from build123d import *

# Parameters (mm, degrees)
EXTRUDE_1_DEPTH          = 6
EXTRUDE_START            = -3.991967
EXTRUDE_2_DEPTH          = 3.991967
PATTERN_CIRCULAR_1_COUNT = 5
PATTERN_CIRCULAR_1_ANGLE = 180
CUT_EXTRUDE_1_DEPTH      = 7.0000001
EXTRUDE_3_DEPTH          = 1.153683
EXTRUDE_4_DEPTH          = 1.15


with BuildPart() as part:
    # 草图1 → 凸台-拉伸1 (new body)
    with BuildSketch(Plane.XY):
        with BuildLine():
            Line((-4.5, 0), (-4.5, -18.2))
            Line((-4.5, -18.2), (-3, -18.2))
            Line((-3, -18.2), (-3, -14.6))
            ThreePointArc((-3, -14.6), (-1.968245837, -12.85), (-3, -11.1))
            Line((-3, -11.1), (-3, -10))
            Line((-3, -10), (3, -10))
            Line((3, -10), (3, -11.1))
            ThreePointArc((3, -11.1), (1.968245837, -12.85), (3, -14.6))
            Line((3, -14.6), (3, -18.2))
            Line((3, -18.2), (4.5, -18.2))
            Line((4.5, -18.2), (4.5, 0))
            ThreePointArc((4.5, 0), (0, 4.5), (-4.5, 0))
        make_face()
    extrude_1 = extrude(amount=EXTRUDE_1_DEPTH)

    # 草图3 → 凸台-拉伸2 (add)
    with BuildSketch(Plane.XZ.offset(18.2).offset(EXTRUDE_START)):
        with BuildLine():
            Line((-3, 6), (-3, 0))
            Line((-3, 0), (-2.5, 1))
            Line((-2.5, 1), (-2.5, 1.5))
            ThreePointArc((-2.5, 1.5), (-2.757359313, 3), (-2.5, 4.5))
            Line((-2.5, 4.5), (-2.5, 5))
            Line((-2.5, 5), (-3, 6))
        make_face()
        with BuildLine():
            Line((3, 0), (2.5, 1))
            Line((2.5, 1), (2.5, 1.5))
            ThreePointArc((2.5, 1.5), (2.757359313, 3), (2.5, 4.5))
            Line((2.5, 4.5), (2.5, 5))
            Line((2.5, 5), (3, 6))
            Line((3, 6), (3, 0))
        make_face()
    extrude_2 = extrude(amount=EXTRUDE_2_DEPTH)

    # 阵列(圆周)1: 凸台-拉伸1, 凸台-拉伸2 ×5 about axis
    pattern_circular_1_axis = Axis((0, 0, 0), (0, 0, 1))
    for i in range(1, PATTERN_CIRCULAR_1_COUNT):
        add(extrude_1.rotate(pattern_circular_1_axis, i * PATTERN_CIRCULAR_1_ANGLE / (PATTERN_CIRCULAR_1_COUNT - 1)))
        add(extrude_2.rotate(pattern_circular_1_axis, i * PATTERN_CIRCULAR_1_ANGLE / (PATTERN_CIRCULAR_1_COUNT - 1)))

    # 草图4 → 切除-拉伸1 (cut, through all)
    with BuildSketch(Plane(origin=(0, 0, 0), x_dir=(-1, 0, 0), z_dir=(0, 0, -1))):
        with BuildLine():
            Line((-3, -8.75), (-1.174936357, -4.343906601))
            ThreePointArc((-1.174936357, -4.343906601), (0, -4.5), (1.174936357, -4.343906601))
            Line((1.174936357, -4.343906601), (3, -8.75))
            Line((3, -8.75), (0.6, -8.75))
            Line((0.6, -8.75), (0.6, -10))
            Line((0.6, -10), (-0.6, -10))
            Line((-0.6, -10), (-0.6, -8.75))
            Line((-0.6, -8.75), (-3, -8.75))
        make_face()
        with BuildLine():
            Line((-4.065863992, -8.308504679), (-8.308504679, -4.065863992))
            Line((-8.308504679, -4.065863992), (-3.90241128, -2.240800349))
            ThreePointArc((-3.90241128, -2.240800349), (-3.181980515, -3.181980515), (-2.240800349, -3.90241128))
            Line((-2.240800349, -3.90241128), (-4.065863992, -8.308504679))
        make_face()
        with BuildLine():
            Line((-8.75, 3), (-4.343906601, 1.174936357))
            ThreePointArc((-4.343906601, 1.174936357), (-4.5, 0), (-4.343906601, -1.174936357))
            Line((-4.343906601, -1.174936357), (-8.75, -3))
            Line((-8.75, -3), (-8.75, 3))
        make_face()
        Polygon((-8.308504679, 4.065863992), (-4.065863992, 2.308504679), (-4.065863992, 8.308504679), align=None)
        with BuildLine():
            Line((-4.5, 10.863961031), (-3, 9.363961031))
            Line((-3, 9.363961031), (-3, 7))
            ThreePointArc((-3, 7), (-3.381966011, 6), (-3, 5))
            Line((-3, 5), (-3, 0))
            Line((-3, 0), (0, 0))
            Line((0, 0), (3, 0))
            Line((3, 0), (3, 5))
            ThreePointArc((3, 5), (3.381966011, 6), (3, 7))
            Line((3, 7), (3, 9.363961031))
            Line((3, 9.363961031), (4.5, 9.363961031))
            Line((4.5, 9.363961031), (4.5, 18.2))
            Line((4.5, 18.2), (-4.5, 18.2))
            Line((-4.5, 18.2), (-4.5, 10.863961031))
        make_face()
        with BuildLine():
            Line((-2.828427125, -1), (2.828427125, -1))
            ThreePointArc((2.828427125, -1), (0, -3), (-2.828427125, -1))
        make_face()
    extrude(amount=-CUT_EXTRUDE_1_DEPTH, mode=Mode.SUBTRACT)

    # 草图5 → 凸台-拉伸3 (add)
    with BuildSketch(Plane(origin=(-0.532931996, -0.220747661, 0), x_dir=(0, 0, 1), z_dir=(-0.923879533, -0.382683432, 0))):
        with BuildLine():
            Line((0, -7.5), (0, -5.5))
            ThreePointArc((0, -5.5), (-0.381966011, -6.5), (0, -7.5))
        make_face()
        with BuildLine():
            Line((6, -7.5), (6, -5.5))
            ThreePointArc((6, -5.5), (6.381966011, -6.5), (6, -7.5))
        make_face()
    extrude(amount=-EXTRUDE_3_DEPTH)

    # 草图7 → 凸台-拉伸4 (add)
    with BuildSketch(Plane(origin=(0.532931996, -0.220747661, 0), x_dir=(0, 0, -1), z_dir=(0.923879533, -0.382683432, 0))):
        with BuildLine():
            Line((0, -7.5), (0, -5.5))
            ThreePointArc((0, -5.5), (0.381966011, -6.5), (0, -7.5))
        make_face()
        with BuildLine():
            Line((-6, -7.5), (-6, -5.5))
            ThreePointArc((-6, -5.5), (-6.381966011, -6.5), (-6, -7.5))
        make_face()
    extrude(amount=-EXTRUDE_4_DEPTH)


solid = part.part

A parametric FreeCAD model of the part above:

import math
import FreeCAD as App
import Part
import Sketcher

V = App.Vector
Q = App.Units.Quantity


def add_polygon(sketch, points):
    """Adds a closed chain of lines whose ends are joined by coincident constraints."""
    first, n = sketch.GeometryCount, len(points)
    for a, b in zip(points, points[1:] + points[:1]):
        sketch.addGeometry(Part.LineSegment(App.Vector(*a, 0), App.Vector(*b, 0)), False)
    for i in range(n):
        sketch.addConstraint(Sketcher.Constraint("Coincident", first + i, 2, first + (i + 1) % n, 1))

doc = App.newDocument("Part")
params = doc.addObject("Spreadsheet::Sheet", "Params")
for row, (alias, value) in enumerate([
    ("sketch1_radius", "2 mm"),
    ("sketch1_radius2", "4.5 mm"),
    ("sketch1_width", "6 mm"),
    ("sketch1_height", "18.2 mm"),
    ("sketch1_height2", "3.6 mm"),
    ("pad1_length", "6 mm"),
    ("sketch2_radius", "4.5 mm"),
    ("sketch2_height", "6 mm"),
    ("sketch2_height2", "0.5 mm"),
    ("pad2_length", "3.991967 mm"),
    ("sketch3_radius", "3 mm"),
    ("sketch3_radius2", "4.5 mm"),
    ("sketch3_radius3", "1.5 mm"),
    ("sketch3_width", "6 mm"),
    ("sketch3_width2", "9 mm"),
    ("sketch4_radius", "1.5 mm"),
    ("sketch4_height", "2 mm"),
    ("pad3_length", "1.153683 mm"),
    ("sketch5_radius", "1.5 mm"),
    ("sketch5_height", "2 mm"),
    ("pad4_length", "1.15 mm"),
], start=1):
    params.set(f"A{row}", alias)
    params.set(f"B{row}", "=" + value)
    params.setAlias(f"B{row}", alias)

body = doc.addObject("PartDesign::Body", "Body")

sketch1 = doc.addObject("Sketcher::SketchObject", "Sketch")
body.addObject(sketch1)
sketch1.AttachmentSupport = (doc.XY_Plane, [""])
sketch1.MapMode = "FlatFace"
sketch1.addGeometry(Part.LineSegment(V(-4.5, 0, 0), V(-4.5, -18.2, 0)), False)
sketch1.addGeometry(Part.LineSegment(V(-4.5, -18.2, 0), V(-3, -18.2, 0)), False)
sketch1.addGeometry(Part.LineSegment(V(-3, -18.2, 0), V(-3, -14.6, 0)), False)
sketch1.addGeometry(Part.ArcOfCircle(Part.Circle(V(-4, -12.8, 0), V(0, 0, 1), 2), math.radians(-61), math.radians(61)), False)
sketch1.addGeometry(Part.LineSegment(V(-3, -11.1, 0), V(-3, -10, 0)), False)
sketch1.addGeometry(Part.LineSegment(V(-3, -10, 0), V(3, -10, 0)), False)
sketch1.addGeometry(Part.LineSegment(V(3, -10, 0), V(3, -11.1, 0)), False)
sketch1.addGeometry(Part.ArcOfCircle(Part.Circle(V(4, -12.8, 0), V(0, 0, 1), 2), math.radians(119), math.radians(241)), False)
sketch1.addGeometry(Part.LineSegment(V(3, -14.6, 0), V(3, -18.2, 0)), False)
sketch1.addGeometry(Part.LineSegment(V(3, -18.2, 0), V(4.5, -18.2, 0)), False)
sketch1.addGeometry(Part.LineSegment(V(4.5, -18.2, 0), V(4.5, 0, 0)), False)
sketch1.addGeometry(Part.ArcOfCircle(Part.Circle(V(0, 0, 0), V(0, 0, 1), 4.5), math.radians(0), math.radians(180)), False)
sketch1.addConstraint(Sketcher.Constraint("Coincident", 0, 2, 1, 1))
sketch1.addConstraint(Sketcher.Constraint("Coincident", 1, 2, 2, 1))
sketch1.addConstraint(Sketcher.Constraint("Coincident", 2, 2, 3, 1))
sketch1.addConstraint(Sketcher.Constraint("Coincident", 3, 2, 4, 1))
sketch1.addConstraint(Sketcher.Constraint("Coincident", 4, 2, 5, 1))
sketch1.addConstraint(Sketcher.Constraint("Coincident", 5, 2, 6, 1))
sketch1.addConstraint(Sketcher.Constraint("Coincident", 6, 2, 7, 1))
sketch1.addConstraint(Sketcher.Constraint("Coincident", 7, 2, 8, 1))
sketch1.addConstraint(Sketcher.Constraint("Coincident", 8, 2, 9, 1))
sketch1.addConstraint(Sketcher.Constraint("Coincident", 9, 2, 10, 1))
sketch1.addConstraint(Sketcher.Constraint("Tangent", 10, 2, 11, 1))
sketch1.addConstraint(Sketcher.Constraint("Tangent", 11, 2, 0, 1))
sketch1.addConstraint(Sketcher.Constraint("Vertical", 0))
sketch1.addConstraint(Sketcher.Constraint("Horizontal", 1))
sketch1.addConstraint(Sketcher.Constraint("Vertical", 2))
sketch1.addConstraint(Sketcher.Constraint("Vertical", 4))
sketch1.addConstraint(Sketcher.Constraint("Horizontal", 5))
sketch1.addConstraint(Sketcher.Constraint("Vertical", 6))
sketch1.addConstraint(Sketcher.Constraint("Vertical", 8))
sketch1.addConstraint(Sketcher.Constraint("Horizontal", 9))
sketch1.addConstraint(Sketcher.Constraint("Vertical", 10))
sketch1.addConstraint(Sketcher.Constraint("Coincident", 11, 3, -1, 1))
sketch1.addConstraint(Sketcher.Constraint("Equal", 3, 7))
sketch1.addConstraint(Sketcher.Constraint("Symmetric", 3, 3, 7, 3, -2))
sketch1.addConstraint(Sketcher.Constraint("Symmetric", 1, 2, 8, 2, -2))
sketch1.addConstraint(Sketcher.Constraint("Horizontal", 3, 2, 6, 2))
sketch1.addConstraint(Sketcher.Constraint("Vertical", 2, 2, 3, 2))
sketch1.addConstraint(Sketcher.Constraint("Radius", 3, Q("2 mm")))
sketch1.addConstraint(Sketcher.Constraint("Radius", 11, Q("4.5 mm")))
sketch1.addConstraint(Sketcher.Constraint("DistanceX", 5, 1, 5, 2, Q("6 mm")))
sketch1.addConstraint(Sketcher.Constraint("DistanceY", 0, 2, 0, 1, Q("18.2 mm")))
sketch1.addConstraint(Sketcher.Constraint("DistanceY", 2, 1, 2, 2, Q("3.6 mm")))
sketch1.addConstraint(Sketcher.Constraint("DistanceY", 4, 1, 4, 2, Q("1.1 mm")))
sketch1.addConstraint(Sketcher.Constraint("DistanceY", 4, 2, -1, 1, Q("10 mm")))
sketch1.setExpression("Constraints[27]", "Params.sketch1_radius")
sketch1.setExpression("Constraints[28]", "Params.sketch1_radius2")
sketch1.setExpression("Constraints[29]", "Params.sketch1_width")
sketch1.setExpression("Constraints[30]", "Params.sketch1_height")
sketch1.setExpression("Constraints[31]", "Params.sketch1_height2")
pad1 = doc.addObject("PartDesign::Pad", "Pad")
body.addObject(pad1)
pad1.Profile = sketch1
pad1.setExpression("Length", "Params.pad1_length")

sketch2 = doc.addObject("Sketcher::SketchObject", "Sketch001")
body.addObject(sketch2)
sketch2.AttachmentSupport = (doc.XZ_Plane, [""])
sketch2.MapMode = "FlatFace"
sketch2.AttachmentOffset = App.Placement(V(0, 0, 14.208033), App.Rotation())
sketch2.addGeometry(Part.LineSegment(V(-3, 6, 0), V(-3, 0, 0)), False)
sketch2.addGeometry(Part.LineSegment(V(-3, 0, 0), V(-2.5, 1, 0)), False)
sketch2.addGeometry(Part.LineSegment(V(-2.5, 1, 0), V(-2.5, 1.5, 0)), False)
sketch2.addGeometry(Part.ArcOfCircle(Part.Circle(V(1.7, 3, 0), V(0, 0, 1), 4.5), math.radians(161), math.radians(199)), False)
sketch2.addGeometry(Part.LineSegment(V(-2.5, 4.5, 0), V(-2.5, 5, 0)), False)
sketch2.addGeometry(Part.LineSegment(V(-2.5, 5, 0), V(-3, 6, 0)), False)
sketch2.addGeometry(Part.LineSegment(V(2.5, 1, 0), V(3, 0, 0)), False)
sketch2.addGeometry(Part.LineSegment(V(3, 0, 0), V(3, 6, 0)), False)
sketch2.addGeometry(Part.LineSegment(V(3, 6, 0), V(2.5, 5, 0)), False)
sketch2.addGeometry(Part.LineSegment(V(2.5, 5, 0), V(2.5, 4.5, 0)), False)
sketch2.addGeometry(Part.ArcOfCircle(Part.Circle(V(-1.7, 3, 0), V(0, 0, 1), 4.5), math.radians(-19), math.radians(19)), False)
sketch2.addGeometry(Part.LineSegment(V(2.5, 1.5, 0), V(2.5, 1, 0)), False)
sketch2.addConstraint(Sketcher.Constraint("Coincident", 0, 2, 1, 1))
sketch2.addConstraint(Sketcher.Constraint("Coincident", 1, 2, 2, 1))
sketch2.addConstraint(Sketcher.Constraint("Coincident", 2, 2, 3, 2))
sketch2.addConstraint(Sketcher.Constraint("Coincident", 3, 1, 4, 1))
sketch2.addConstraint(Sketcher.Constraint("Coincident", 4, 2, 5, 1))
sketch2.addConstraint(Sketcher.Constraint("Coincident", 5, 2, 0, 1))
sketch2.addConstraint(Sketcher.Constraint("Coincident", 6, 2, 7, 1))
sketch2.addConstraint(Sketcher.Constraint("Coincident", 7, 2, 8, 1))
sketch2.addConstraint(Sketcher.Constraint("Coincident", 8, 2, 9, 1))
sketch2.addConstraint(Sketcher.Constraint("Coincident", 9, 2, 10, 2))
sketch2.addConstraint(Sketcher.Constraint("Coincident", 10, 1, 11, 1))
sketch2.addConstraint(Sketcher.Constraint("Coincident", 11, 2, 6, 1))
sketch2.addConstraint(Sketcher.Constraint("Vertical", 0))
sketch2.addConstraint(Sketcher.Constraint("Vertical", 2))
sketch2.addConstraint(Sketcher.Constraint("Vertical", 4))
sketch2.addConstraint(Sketcher.Constraint("Vertical", 7))
sketch2.addConstraint(Sketcher.Constraint("Vertical", 9))
sketch2.addConstraint(Sketcher.Constraint("Vertical", 11))
sketch2.addConstraint(Sketcher.Constraint("Equal", 3, 10))
sketch2.addConstraint(Sketcher.Constraint("Symmetric", 0, 2, 6, 2, -1, 1))
sketch2.addConstraint(Sketcher.Constraint("Symmetric", 3, 3, 10, 3, -2))
sketch2.addConstraint(Sketcher.Constraint("Symmetric", 4, 2, 8, 2, -2))
sketch2.addConstraint(Sketcher.Constraint("Symmetric", 1, 2, 11, 2, -2))
sketch2.addConstraint(Sketcher.Constraint("PointOnObject", 0, 2, -1))
sketch2.addConstraint(Sketcher.Constraint("Parallel", 5, 6))
sketch2.addConstraint(Sketcher.Constraint("Parallel", 1, 8))
sketch2.addConstraint(Sketcher.Constraint("Vertical", 2, 2, 3, 1))
sketch2.addConstraint(Sketcher.Constraint("Equal", 2, 4))
sketch2.addConstraint(Sketcher.Constraint("Radius", 3, Q("4.5 mm")))
sketch2.addConstraint(Sketcher.Constraint("DistanceY", 0, 2, 0, 1, Q("6 mm")))
sketch2.addConstraint(Sketcher.Constraint("DistanceY", 2, 1, 2, 2, Q("0.5 mm")))
sketch2.addConstraint(Sketcher.Constraint("DistanceX", 0, 2, -1, 1, Q("3 mm")))
sketch2.addConstraint(Sketcher.Constraint("DistanceY", -1, 1, 1, 2, Q("1 mm")))
sketch2.addConstraint(Sketcher.Constraint("DistanceX", 4, 2, 8, 2, Q("5 mm")))
sketch2.setExpression("Constraints[28]", "Params.sketch2_radius")
sketch2.setExpression("Constraints[29]", "Params.sketch2_height")
sketch2.setExpression("Constraints[30]", "Params.sketch2_height2")
pad2 = doc.addObject("PartDesign::Pad", "Pad001")
body.addObject(pad2)
pad2.Profile = sketch2
pad2.setExpression("Length", "Params.pad2_length")
doc.recompute()

polarpattern = doc.addObject("PartDesign::PolarPattern", "PolarPattern")
body.addObject(polarpattern)
polarpattern.Originals = [pad1, pad2]
polarpattern.Axis = (doc.Z_Axis, [""])
polarpattern.Angle = 180
polarpattern.Occurrences = 5
body.Tip = polarpattern

sketch3 = doc.addObject("Sketcher::SketchObject", "Sketch002")
body.addObject(sketch3)
sketch3.AttachmentSupport = (doc.XY_Plane, [""])
sketch3.MapMode = "FlatFace"
sketch3.addGeometry(Part.LineSegment(V(1.2, -4.3, 0), V(3, -8.8, 0)), False)
sketch3.addGeometry(Part.LineSegment(V(3, -8.8, 0), V(0.6, -8.8, 0)), False)
sketch3.addGeometry(Part.LineSegment(V(0.6, -8.8, 0), V(0.6, -10, 0)), False)
sketch3.addGeometry(Part.LineSegment(V(0.6, -10, 0), V(-0.6, -10, 0)), False)
sketch3.addGeometry(Part.LineSegment(V(-0.6, -10, 0), V(-0.6, -8.8, 0)), False)
sketch3.addGeometry(Part.LineSegment(V(-0.6, -8.8, 0), V(-3, -8.8, 0)), False)
sketch3.addGeometry(Part.LineSegment(V(-3, -8.8, 0), V(-1.2, -4.3, 0)), False)
sketch3.addGeometry(Part.ArcOfCircle(Part.Circle(V(0, 0, 0), V(0, 0, 1), 4.5), math.radians(-105), math.radians(-75)), False)
sketch3.addGeometry(Part.LineSegment(V(8.3, -4.1, 0), V(4.1, -8.3, 0)), False)
sketch3.addGeometry(Part.LineSegment(V(4.1, -8.3, 0), V(2.2, -3.9, 0)), False)
sketch3.addGeometry(Part.ArcOfCircle(Part.Circle(V(0, 0, 0), V(0, 0, 1), 4.5), math.radians(-60), math.radians(-30)), False)
sketch3.addGeometry(Part.LineSegment(V(3.9, -2.2, 0), V(8.3, -4.1, 0)), False)
sketch3.addGeometry(Part.LineSegment(V(4.3, 1.2, 0), V(8.8, 3, 0)), False)
sketch3.addGeometry(Part.LineSegment(V(8.8, 3, 0), V(8.8, -3, 0)), False)
sketch3.addGeometry(Part.LineSegment(V(8.8, -3, 0), V(4.3, -1.2, 0)), False)
sketch3.addGeometry(Part.ArcOfCircle(Part.Circle(V(0, 0, 0), V(0, 0, 1), 4.5), math.radians(-15), math.radians(15)), False)
add_polygon(sketch3, [(8.3, 4.1), (4.1, 2.3), (4.1, 8.3)])
sketch3.addGeometry(Part.LineSegment(V(4.5, 10.9, 0), V(3, 9.4, 0)), False)
sketch3.addGeometry(Part.LineSegment(V(3, 9.4, 0), V(3, 7, 0)), False)
sketch3.addGeometry(Part.ArcOfCircle(Part.Circle(V(1.9, 6, 0), V(0, 0, 1), 1.5), math.radians(-42), math.radians(42)), False)
sketch3.addGeometry(Part.LineSegment(V(3, 5, 0), V(3, 0, 0)), False)
sketch3.addGeometry(Part.LineSegment(V(3, 0, 0), V(-3, 0, 0)), False)
sketch3.addGeometry(Part.LineSegment(V(-3, 0, 0), V(-3, 5, 0)), False)
sketch3.addGeometry(Part.ArcOfCircle(Part.Circle(V(-1.9, 6, 0), V(0, 0, 1), 1.5), math.radians(138), math.radians(222)), False)
sketch3.addGeometry(Part.LineSegment(V(-3, 7, 0), V(-3, 9.4, 0)), False)
sketch3.addGeometry(Part.LineSegment(V(-3, 9.4, 0), V(-4.5, 9.4, 0)), False)
sketch3.addGeometry(Part.LineSegment(V(-4.5, 9.4, 0), V(-4.5, 18.2, 0)), False)
sketch3.addGeometry(Part.LineSegment(V(-4.5, 18.2, 0), V(4.5, 18.2, 0)), False)
sketch3.addGeometry(Part.LineSegment(V(4.5, 18.2, 0), V(4.5, 10.9, 0)), False)
sketch3.addGeometry(Part.LineSegment(V(-2.8, -1, 0), V(2.8, -1, 0)), False)
sketch3.addGeometry(Part.ArcOfCircle(Part.Circle(V(0, 0, 0), V(0, 0, 1), 3), math.radians(-161), math.radians(-19)), False)
sketch3.addConstraint(Sketcher.Constraint("Coincident", 0, 2, 1, 1))
sketch3.addConstraint(Sketcher.Constraint("Coincident", 1, 2, 2, 1))
sketch3.addConstraint(Sketcher.Constraint("Coincident", 2, 2, 3, 1))
sketch3.addConstraint(Sketcher.Constraint("Coincident", 3, 2, 4, 1))
sketch3.addConstraint(Sketcher.Constraint("Coincident", 4, 2, 5, 1))
sketch3.addConstraint(Sketcher.Constraint("Coincident", 5, 2, 6, 1))
sketch3.addConstraint(Sketcher.Constraint("Coincident", 6, 2, 7, 1))
sketch3.addConstraint(Sketcher.Constraint("Coincident", 7, 2, 0, 1))
sketch3.addConstraint(Sketcher.Constraint("Coincident", 8, 2, 9, 1))
sketch3.addConstraint(Sketcher.Constraint("Coincident", 9, 2, 10, 1))
sketch3.addConstraint(Sketcher.Constraint("Coincident", 10, 2, 11, 1))
sketch3.addConstraint(Sketcher.Constraint("Coincident", 11, 2, 8, 1))
sketch3.addConstraint(Sketcher.Constraint("Coincident", 12, 2, 13, 1))
sketch3.addConstraint(Sketcher.Constraint("Coincident", 13, 2, 14, 1))
sketch3.addConstraint(Sketcher.Constraint("Coincident", 14, 2, 15, 1))
sketch3.addConstraint(Sketcher.Constraint("Coincident", 15, 2, 12, 1))
sketch3.addConstraint(Sketcher.Constraint("Coincident", 19, 2, 20, 1))
sketch3.addConstraint(Sketcher.Constraint("Coincident", 20, 2, 21, 2))
sketch3.addConstraint(Sketcher.Constraint("Coincident", 21, 1, 22, 1))
sketch3.addConstraint(Sketcher.Constraint("Coincident", 22, 2, 23, 1))
sketch3.addConstraint(Sketcher.Constraint("Coincident", 23, 2, 24, 1))
sketch3.addConstraint(Sketcher.Constraint("Coincident", 24, 2, 25, 2))
sketch3.addConstraint(Sketcher.Constraint("Coincident", 25, 1, 26, 1))
sketch3.addConstraint(Sketcher.Constraint("Coincident", 26, 2, 27, 1))
sketch3.addConstraint(Sketcher.Constraint("Coincident", 27, 2, 28, 1))
sketch3.addConstraint(Sketcher.Constraint("Coincident", 28, 2, 29, 1))
sketch3.addConstraint(Sketcher.Constraint("Coincident", 29, 2, 30, 1))
sketch3.addConstraint(Sketcher.Constraint("Coincident", 30, 2, 19, 1))
sketch3.addConstraint(Sketcher.Constraint("Coincident", 31, 1, 32, 1))
sketch3.addConstraint(Sketcher.Constraint("Coincident", 32, 2, 31, 2))
sketch3.addConstraint(Sketcher.Constraint("Horizontal", 1))
sketch3.addConstraint(Sketcher.Constraint("Vertical", 2))
sketch3.addConstraint(Sketcher.Constraint("Horizontal", 3))
sketch3.addConstraint(Sketcher.Constraint("Vertical", 4))
sketch3.addConstraint(Sketcher.Constraint("Horizontal", 5))
sketch3.addConstraint(Sketcher.Constraint("Vertical", 13))
sketch3.addConstraint(Sketcher.Constraint("Vertical", 17))
sketch3.addConstraint(Sketcher.Constraint("Vertical", 20))
sketch3.addConstraint(Sketcher.Constraint("Vertical", 22))
sketch3.addConstraint(Sketcher.Constraint("Horizontal", 23))
sketch3.addConstraint(Sketcher.Constraint("Vertical", 24))
sketch3.addConstraint(Sketcher.Constraint("Vertical", 26))
sketch3.addConstraint(Sketcher.Constraint("Horizontal", 27))
sketch3.addConstraint(Sketcher.Constraint("Vertical", 28))
sketch3.addConstraint(Sketcher.Constraint("Horizontal", 29))
sketch3.addConstraint(Sketcher.Constraint("Vertical", 30))
sketch3.addConstraint(Sketcher.Constraint("Horizontal", 31))
sketch3.addConstraint(Sketcher.Constraint("Coincident", 7, 3, -1, 1))
sketch3.addConstraint(Sketcher.Constraint("Coincident", 10, 3, -1, 1))
sketch3.addConstraint(Sketcher.Constraint("Coincident", 15, 3, -1, 1))
sketch3.addConstraint(Sketcher.Constraint("Coincident", 32, 3, -1, 1))
sketch3.addConstraint(Sketcher.Constraint("Equal", 7, 10))
sketch3.addConstraint(Sketcher.Constraint("Equal", 10, 15))
sketch3.addConstraint(Sketcher.Constraint("Equal", 21, 25))
sketch3.addConstraint(Sketcher.Constraint("Symmetric", 22, 2, 23, 2, -1, 1))
sketch3.addConstraint(Sketcher.Constraint("Symmetric", 21, 3, 25, 3, -2))
sketch3.addConstraint(Sketcher.Constraint("Symmetric", 1, 2, 4, 2, -2))
sketch3.addConstraint(Sketcher.Constraint("Symmetric", 19, 2, 26, 2, -2))
sketch3.addConstraint(Sketcher.Constraint("Symmetric", 8, 2, 17, 2, -1))
sketch3.addConstraint(Sketcher.Constraint("Symmetric", 11, 2, 18, 2, -1))
sketch3.addConstraint(Sketcher.Constraint("Parallel", 0, 9))
sketch3.addConstraint(Sketcher.Constraint("Perpendicular", 6, 11))
sketch3.addConstraint(Sketcher.Constraint("Perpendicular", 9, 12))
sketch3.addConstraint(Sketcher.Constraint("Parallel", 11, 14))
sketch3.addConstraint(Sketcher.Constraint("Parallel", 12, 16))
sketch3.addConstraint(Sketcher.Constraint("Perpendicular", 8, 18))
sketch3.addConstraint(Sketcher.Constraint("Perpendicular", 18, 19))
sketch3.addConstraint(Sketcher.Constraint("Horizontal", 6, 2, 7, 2))
sketch3.addConstraint(Sketcher.Constraint("Vertical", 14, 2, 15, 2))
sketch3.addConstraint(Sketcher.Constraint("Vertical", 0, 2, 19, 2))
sketch3.addConstraint(Sketcher.Constraint("Vertical", 20, 2, 21, 1))
sketch3.addConstraint(Sketcher.Constraint("Vertical", 5, 2, 23, 2))
sketch3.addConstraint(Sketcher.Constraint("Equal", 23, 13))
sketch3.addConstraint(Sketcher.Constraint("Equal", 13, 17))
sketch3.addConstraint(Sketcher.Constraint("Equal", 6, 9))
sketch3.addConstraint(Sketcher.Constraint("Equal", 9, 11))
sketch3.addConstraint(Sketcher.Constraint("Equal", 11, 12))
sketch3.addConstraint(Sketcher.Constraint("Radius", 32, Q("3 mm")))
sketch3.addConstraint(Sketcher.Constraint("Radius", 7, Q("4.5 mm")))
sketch3.addConstraint(Sketcher.Constraint("Radius", 21, Q("1.5 mm")))
sketch3.addConstraint(Sketcher.Constraint("DistanceX", 23, 2, 23, 1, Q("6 mm")))
sketch3.addConstraint(Sketcher.Constraint("DistanceX", 29, 1, 29, 2, Q("9 mm")))
sketch3.addConstraint(Sketcher.Constraint("DistanceY", 22, 2, 22, 1, Q("5 mm")))
sketch3.addConstraint(Sketcher.Constraint("Distance", 8, Q("6 mm")))
sketch3.addConstraint(Sketcher.Constraint("DistanceX", 1, 2, 1, 1, Q("2.4 mm")))
sketch3.addConstraint(Sketcher.Constraint("DistanceX", 27, 2, 27, 1, Q("1.5 mm")))
sketch3.addConstraint(Sketcher.Constraint("DistanceY", -1, 1, 21, 3, Q("6 mm")))
sketch3.addConstraint(Sketcher.Constraint("DistanceY", 2, 2, -1, 1, Q("10 mm")))
sketch3.addConstraint(Sketcher.Constraint("DistanceY", 31, 1, -1, 1, Q("1 mm")))
sketch3.addConstraint(Sketcher.Constraint("DistanceY", 2, 2, 2, 1, Q("1.25 mm")))
sketch3.addConstraint(Sketcher.Constraint("DistanceY", -1, 1, 28, 2, Q("18.2 mm")))
sketch3.addConstraint(Sketcher.Constraint("DistanceY", 20, 2, 20, 1, Q("2.363961 mm")))
sketch3.setExpression("Constraints[80]", "Params.sketch3_radius")
sketch3.setExpression("Constraints[81]", "Params.sketch3_radius2")
sketch3.setExpression("Constraints[82]", "Params.sketch3_radius3")
sketch3.setExpression("Constraints[83]", "Params.sketch3_width")
sketch3.setExpression("Constraints[84]", "Params.sketch3_width2")
pocket1 = doc.addObject("PartDesign::Pocket", "Pocket")
body.addObject(pocket1)
pocket1.Profile = sketch3
pocket1.Type = "ThroughAll"
pocket1.Reversed = True

sketch4 = doc.addObject("Sketcher::SketchObject", "Sketch003")
body.addObject(sketch4)
sketch4.Placement = App.Placement(V(-0.532932, -0.220748, 0), App.Rotation(V(0, 0, 1), V(-0.382683432, 0.923879533, 0), V(-0.923879533, -0.382683432, 0), "ZXY"))
sketch4.addGeometry(Part.LineSegment(V(0, -7.5, 0), V(0, -5.5, 0)), False)
sketch4.addGeometry(Part.ArcOfCircle(Part.Circle(V(1.1, -6.5, 0), V(0, 0, 1), 1.5), math.radians(138), math.radians(222)), False)
sketch4.addGeometry(Part.LineSegment(V(6, -5.5, 0), V(6, -7.5, 0)), False)
sketch4.addGeometry(Part.ArcOfCircle(Part.Circle(V(4.9, -6.5, 0), V(0, 0, 1), 1.5), math.radians(-42), math.radians(42)), False)
sketch4.addConstraint(Sketcher.Constraint("Coincident", 0, 1, 1, 2))
sketch4.addConstraint(Sketcher.Constraint("Coincident", 1, 1, 0, 2))
sketch4.addConstraint(Sketcher.Constraint("Coincident", 2, 1, 3, 2))
sketch4.addConstraint(Sketcher.Constraint("Coincident", 3, 1, 2, 2))
sketch4.addConstraint(Sketcher.Constraint("Vertical", 0))
sketch4.addConstraint(Sketcher.Constraint("Vertical", 2))
sketch4.addConstraint(Sketcher.Constraint("Equal", 1, 3))
sketch4.addConstraint(Sketcher.Constraint("PointOnObject", 0, 1, -2))
sketch4.addConstraint(Sketcher.Constraint("Horizontal", 1, 3, 3, 3))
sketch4.addConstraint(Sketcher.Constraint("Horizontal", 1, 1, 2, 1))
sketch4.addConstraint(Sketcher.Constraint("Radius", 1, Q("1.5 mm")))
sketch4.addConstraint(Sketcher.Constraint("DistanceY", 0, 1, 0, 2, Q("2 mm")))
sketch4.addConstraint(Sketcher.Constraint("DistanceX", -1, 1, 2, 1, Q("6 mm")))
sketch4.addConstraint(Sketcher.Constraint("DistanceY", 1, 3, -1, 1, Q("6.5 mm")))
sketch4.setExpression("Constraints[10]", "Params.sketch4_radius")
sketch4.setExpression("Constraints[11]", "Params.sketch4_height")
pad3 = doc.addObject("PartDesign::Pad", "Pad002")
body.addObject(pad3)
pad3.Profile = sketch4
pad3.setExpression("Length", "Params.pad3_length")
pad3.Reversed = True

sketch5 = doc.addObject("Sketcher::SketchObject", "Sketch004")
body.addObject(sketch5)
sketch5.Placement = App.Placement(V(0.532932, -0.220748, 0), App.Rotation(V(0, 0, -1), V(0.382683432, 0.923879533, 0), V(0.923879533, -0.382683432, 0), "ZXY"))
sketch5.addGeometry(Part.LineSegment(V(0, -5.5, 0), V(0, -7.5, 0)), False)
sketch5.addGeometry(Part.ArcOfCircle(Part.Circle(V(-1.1, -6.5, 0), V(0, 0, 1), 1.5), math.radians(-42), math.radians(42)), False)
sketch5.addGeometry(Part.LineSegment(V(-6, -7.5, 0), V(-6, -5.5, 0)), False)
sketch5.addGeometry(Part.ArcOfCircle(Part.Circle(V(-4.9, -6.5, 0), V(0, 0, 1), 1.5), math.radians(138), math.radians(222)), False)
sketch5.addConstraint(Sketcher.Constraint("Coincident", 0, 1, 1, 2))
sketch5.addConstraint(Sketcher.Constraint("Coincident", 1, 1, 0, 2))
sketch5.addConstraint(Sketcher.Constraint("Coincident", 2, 1, 3, 2))
sketch5.addConstraint(Sketcher.Constraint("Coincident", 3, 1, 2, 2))
sketch5.addConstraint(Sketcher.Constraint("Vertical", 0))
sketch5.addConstraint(Sketcher.Constraint("Vertical", 2))
sketch5.addConstraint(Sketcher.Constraint("Equal", 1, 3))
sketch5.addConstraint(Sketcher.Constraint("PointOnObject", 0, 1, -2))
sketch5.addConstraint(Sketcher.Constraint("Horizontal", 1, 3, 3, 3))
sketch5.addConstraint(Sketcher.Constraint("Horizontal", 1, 1, 2, 1))
sketch5.addConstraint(Sketcher.Constraint("Radius", 1, Q("1.5 mm")))
sketch5.addConstraint(Sketcher.Constraint("DistanceY", 0, 2, 0, 1, Q("2 mm")))
sketch5.addConstraint(Sketcher.Constraint("DistanceX", 2, 1, -1, 1, Q("6 mm")))
sketch5.addConstraint(Sketcher.Constraint("DistanceY", 1, 3, -1, 1, Q("6.5 mm")))
sketch5.setExpression("Constraints[10]", "Params.sketch5_radius")
sketch5.setExpression("Constraints[11]", "Params.sketch5_height")
pad4 = doc.addObject("PartDesign::Pad", "Pad003")
body.addObject(pad4)
pad4.Profile = sketch5
pad4.setExpression("Length", "Params.pad4_length")
pad4.Reversed = True

doc.recompute()
